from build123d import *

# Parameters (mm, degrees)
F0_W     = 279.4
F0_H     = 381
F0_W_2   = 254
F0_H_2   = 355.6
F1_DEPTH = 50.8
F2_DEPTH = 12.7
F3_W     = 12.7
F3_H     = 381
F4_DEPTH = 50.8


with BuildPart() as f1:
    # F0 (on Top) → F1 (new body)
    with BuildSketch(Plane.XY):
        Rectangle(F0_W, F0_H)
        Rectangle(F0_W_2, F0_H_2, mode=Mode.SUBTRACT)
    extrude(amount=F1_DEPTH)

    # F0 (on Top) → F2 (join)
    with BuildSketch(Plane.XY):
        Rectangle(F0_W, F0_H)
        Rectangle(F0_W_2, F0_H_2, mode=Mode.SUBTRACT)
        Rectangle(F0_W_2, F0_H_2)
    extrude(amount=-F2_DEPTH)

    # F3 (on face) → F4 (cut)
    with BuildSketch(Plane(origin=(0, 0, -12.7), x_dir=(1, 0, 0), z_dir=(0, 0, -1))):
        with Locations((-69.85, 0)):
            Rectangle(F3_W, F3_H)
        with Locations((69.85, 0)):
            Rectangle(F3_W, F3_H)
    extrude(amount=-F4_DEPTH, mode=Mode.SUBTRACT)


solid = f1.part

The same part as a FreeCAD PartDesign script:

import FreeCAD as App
import Part
import Sketcher
from FreeCAD import Vector
Q = App.Units.Quantity

doc = App.newDocument("Part")
body = doc.addObject("PartDesign::Body", "Body")

sketch1 = body.newObject("Sketcher::SketchObject", "Sketch")
sketch1.AttachmentSupport = (doc.getObject("XY_Plane"), [""])
sketch1.MapMode = "FlatFace"
sketch1.addGeometry([
    Part.LineSegment(Vector(-140, 190, 0), Vector(-140, -190, 0)),
    Part.LineSegment(Vector(-140, -190, 0), Vector(140, -190, 0)),
    Part.LineSegment(Vector(140, -190, 0), Vector(140, 190, 0)),
    Part.LineSegment(Vector(140, 190, 0), Vector(-140, 190, 0)),
    Part.LineSegment(Vector(127, -178, 0), Vector(-127, -178, 0)),
    Part.LineSegment(Vector(-127, -178, 0), Vector(-127, 178, 0)),
    Part.LineSegment(Vector(-127, 178, 0), Vector(127, 178, 0)),
    Part.LineSegment(Vector(127, 178, 0), Vector(127, -178, 0)),
], False)
sketch1.addConstraint([
    Sketcher.Constraint("Coincident", 0, 2, 1, 1),
    Sketcher.Constraint("Coincident", 1, 2, 2, 1),
    Sketcher.Constraint("Coincident", 2, 2, 3, 1),
    Sketcher.Constraint("Coincident", 3, 2, 0, 1),
    Sketcher.Constraint("Coincident", 4, 2, 5, 1),
    Sketcher.Constraint("Coincident", 5, 2, 6, 1),
    Sketcher.Constraint("Coincident", 6, 2, 7, 1),
    Sketcher.Constraint("Coincident", 7, 2, 4, 1),
    Sketcher.Constraint("Vertical", 0),
    Sketcher.Constraint("Horizontal", 1),
    Sketcher.Constraint("Vertical", 2),
    Sketcher.Constraint("Horizontal", 3),
    Sketcher.Constraint("Horizontal", 4),
    Sketcher.Constraint("Vertical", 5),
    Sketcher.Constraint("Horizontal", 6),
    Sketcher.Constraint("Vertical", 7),
    Sketcher.Constraint("Symmetric", 0, 2, 2, 2, -1, 1),
    Sketcher.Constraint("Symmetric", 4, 2, 6, 2, -1, 1),
    Sketcher.Constraint("DistanceX", 1, 1, 1, 2, Q("11 in")),
    Sketcher.Constraint("DistanceX", 4, 2, 4, 1, Q("10 in")),
    Sketcher.Constraint("DistanceY", 0, 2, 0, 1, Q("15 in")),
    Sketcher.Constraint("DistanceY", 5, 1, 5, 2, Q("14 in")),
])
pad1 = body.newObject("PartDesign::Pad", "Pad")
pad1.Profile = sketch1
pad1.Length = Q("2 in")

sketch2 = body.newObject("Sketcher::SketchObject", "Sketch001")
sketch2.AttachmentSupport = (doc.getObject("XY_Plane"), [""])
sketch2.MapMode = "FlatFace"
sketch2.addGeometry([
    Part.LineSegment(Vector(-140, 190, 0), Vector(-140, -190, 0)),
    Part.LineSegment(Vector(-140, -190, 0), Vector(140, -190, 0)),
    Part.LineSegment(Vector(140, -190, 0), Vector(140, 190, 0)),
    Part.LineSegment(Vector(140, 190, 0), Vector(-140, 190, 0)),
], False)
sketch2.addConstraint([
    Sketcher.Constraint("Coincident", 0, 2, 1, 1),
    Sketcher.Constraint("Coincident", 1, 2, 2, 1),
    Sketcher.Constraint("Coincident", 2, 2, 3, 1),
    Sketcher.Constraint("Coincident", 3, 2, 0, 1),
    Sketcher.Constraint("Vertical", 0),
    Sketcher.Constraint("Horizontal", 1),
    Sketcher.Constraint("Vertical", 2),
    Sketcher.Constraint("Horizontal", 3),
    Sketcher.Constraint("Symmetric", 0, 2, 2, 2, -1, 1),
    Sketcher.Constraint("DistanceX", 1, 1, 1, 2, Q("11 in")),
    Sketcher.Constraint("DistanceY", 0, 2, 0, 1, Q("15 in")),
])
pad2 = body.newObject("PartDesign::Pad", "Pad001")
pad2.Profile = sketch2
pad2.Length = Q("0.5 in")
pad2.Reversed = True

sketch3 = body.newObject("Sketcher::SketchObject", "Sketch002")
sketch3.AttachmentSupport = (doc.getObject("XY_Plane"), [""])
sketch3.MapMode = "FlatFace"
sketch3.AttachmentOffset = App.Placement(Vector(0, 0, -0.5 * 25.4), App.Rotation())
sketch3.addGeometry([
    Part.LineSegment(Vector(-76, -190, 0), Vector(-76, 190, 0)),
    Part.LineSegment(Vector(-76, 190, 0), Vector(-64, 190, 0)),
    Part.LineSegment(Vector(-64, 190, 0), Vector(-64, -190, 0)),
    Part.LineSegment(Vector(-64, -190, 0), Vector(-76, -190, 0)),
    Part.LineSegment(Vector(64, -190, 0), Vector(64, 190, 0)),
    Part.LineSegment(Vector(64, 190, 0), Vector(76, 190, 0)),
    Part.LineSegment(Vector(76, 190, 0), Vector(76, -190, 0)),
    Part.LineSegment(Vector(76, -190, 0), Vector(64, -190, 0)),
], False)
sketch3.addConstraint([
    Sketcher.Constraint("Coincident", 0, 2, 1, 1),
    Sketcher.Constraint("Coincident", 1, 2, 2, 1),
    Sketcher.Constraint("Coincident", 2, 2, 3, 1),
    Sketcher.Constraint("Coincident", 3, 2, 0, 1),
    Sketcher.Constraint("Coincident", 4, 2, 5, 1),
    Sketcher.Constraint("Coincident", 5, 2, 6, 1),
    Sketcher.Constraint("Coincident", 6, 2, 7, 1),
    Sketcher.Constraint("Coincident", 7, 2, 4, 1),
    Sketcher.Constraint("Vertical", 0),
    Sketcher.Constraint("Horizontal", 1),
    Sketcher.Constraint("Vertical", 2),
    Sketcher.Constraint("Horizontal", 3),
    Sketcher.Constraint("Vertical", 4),
    Sketcher.Constraint("Horizontal", 5),
    Sketcher.Constraint("Vertical", 6),
    Sketcher.Constraint("Horizontal", 7),
    Sketcher.Constraint("Symmetric", 2, 2, 4, 2, -1, 1),
    Sketcher.Constraint("Symmetric", 0, 2, 6, 2, -1, 1),
    Sketcher.Constraint("Horizontal", 1, 2, 4, 2),
    Sketcher.Constraint("DistanceY", 0, 1, 0, 2, Q("15 in")),
    Sketcher.Constraint("DistanceX", 1, 1, 1, 2, Q("0.5 in")),
    Sketcher.Constraint("DistanceX", 0, 2, -1, 1, Q("3 in")),
])
pocket1 = body.newObject("PartDesign::Pocket", "Pocket")
pocket1.Profile = sketch3
pocket1.Length = Q("2 in")
pocket1.Reversed = True

doc.recompute()
